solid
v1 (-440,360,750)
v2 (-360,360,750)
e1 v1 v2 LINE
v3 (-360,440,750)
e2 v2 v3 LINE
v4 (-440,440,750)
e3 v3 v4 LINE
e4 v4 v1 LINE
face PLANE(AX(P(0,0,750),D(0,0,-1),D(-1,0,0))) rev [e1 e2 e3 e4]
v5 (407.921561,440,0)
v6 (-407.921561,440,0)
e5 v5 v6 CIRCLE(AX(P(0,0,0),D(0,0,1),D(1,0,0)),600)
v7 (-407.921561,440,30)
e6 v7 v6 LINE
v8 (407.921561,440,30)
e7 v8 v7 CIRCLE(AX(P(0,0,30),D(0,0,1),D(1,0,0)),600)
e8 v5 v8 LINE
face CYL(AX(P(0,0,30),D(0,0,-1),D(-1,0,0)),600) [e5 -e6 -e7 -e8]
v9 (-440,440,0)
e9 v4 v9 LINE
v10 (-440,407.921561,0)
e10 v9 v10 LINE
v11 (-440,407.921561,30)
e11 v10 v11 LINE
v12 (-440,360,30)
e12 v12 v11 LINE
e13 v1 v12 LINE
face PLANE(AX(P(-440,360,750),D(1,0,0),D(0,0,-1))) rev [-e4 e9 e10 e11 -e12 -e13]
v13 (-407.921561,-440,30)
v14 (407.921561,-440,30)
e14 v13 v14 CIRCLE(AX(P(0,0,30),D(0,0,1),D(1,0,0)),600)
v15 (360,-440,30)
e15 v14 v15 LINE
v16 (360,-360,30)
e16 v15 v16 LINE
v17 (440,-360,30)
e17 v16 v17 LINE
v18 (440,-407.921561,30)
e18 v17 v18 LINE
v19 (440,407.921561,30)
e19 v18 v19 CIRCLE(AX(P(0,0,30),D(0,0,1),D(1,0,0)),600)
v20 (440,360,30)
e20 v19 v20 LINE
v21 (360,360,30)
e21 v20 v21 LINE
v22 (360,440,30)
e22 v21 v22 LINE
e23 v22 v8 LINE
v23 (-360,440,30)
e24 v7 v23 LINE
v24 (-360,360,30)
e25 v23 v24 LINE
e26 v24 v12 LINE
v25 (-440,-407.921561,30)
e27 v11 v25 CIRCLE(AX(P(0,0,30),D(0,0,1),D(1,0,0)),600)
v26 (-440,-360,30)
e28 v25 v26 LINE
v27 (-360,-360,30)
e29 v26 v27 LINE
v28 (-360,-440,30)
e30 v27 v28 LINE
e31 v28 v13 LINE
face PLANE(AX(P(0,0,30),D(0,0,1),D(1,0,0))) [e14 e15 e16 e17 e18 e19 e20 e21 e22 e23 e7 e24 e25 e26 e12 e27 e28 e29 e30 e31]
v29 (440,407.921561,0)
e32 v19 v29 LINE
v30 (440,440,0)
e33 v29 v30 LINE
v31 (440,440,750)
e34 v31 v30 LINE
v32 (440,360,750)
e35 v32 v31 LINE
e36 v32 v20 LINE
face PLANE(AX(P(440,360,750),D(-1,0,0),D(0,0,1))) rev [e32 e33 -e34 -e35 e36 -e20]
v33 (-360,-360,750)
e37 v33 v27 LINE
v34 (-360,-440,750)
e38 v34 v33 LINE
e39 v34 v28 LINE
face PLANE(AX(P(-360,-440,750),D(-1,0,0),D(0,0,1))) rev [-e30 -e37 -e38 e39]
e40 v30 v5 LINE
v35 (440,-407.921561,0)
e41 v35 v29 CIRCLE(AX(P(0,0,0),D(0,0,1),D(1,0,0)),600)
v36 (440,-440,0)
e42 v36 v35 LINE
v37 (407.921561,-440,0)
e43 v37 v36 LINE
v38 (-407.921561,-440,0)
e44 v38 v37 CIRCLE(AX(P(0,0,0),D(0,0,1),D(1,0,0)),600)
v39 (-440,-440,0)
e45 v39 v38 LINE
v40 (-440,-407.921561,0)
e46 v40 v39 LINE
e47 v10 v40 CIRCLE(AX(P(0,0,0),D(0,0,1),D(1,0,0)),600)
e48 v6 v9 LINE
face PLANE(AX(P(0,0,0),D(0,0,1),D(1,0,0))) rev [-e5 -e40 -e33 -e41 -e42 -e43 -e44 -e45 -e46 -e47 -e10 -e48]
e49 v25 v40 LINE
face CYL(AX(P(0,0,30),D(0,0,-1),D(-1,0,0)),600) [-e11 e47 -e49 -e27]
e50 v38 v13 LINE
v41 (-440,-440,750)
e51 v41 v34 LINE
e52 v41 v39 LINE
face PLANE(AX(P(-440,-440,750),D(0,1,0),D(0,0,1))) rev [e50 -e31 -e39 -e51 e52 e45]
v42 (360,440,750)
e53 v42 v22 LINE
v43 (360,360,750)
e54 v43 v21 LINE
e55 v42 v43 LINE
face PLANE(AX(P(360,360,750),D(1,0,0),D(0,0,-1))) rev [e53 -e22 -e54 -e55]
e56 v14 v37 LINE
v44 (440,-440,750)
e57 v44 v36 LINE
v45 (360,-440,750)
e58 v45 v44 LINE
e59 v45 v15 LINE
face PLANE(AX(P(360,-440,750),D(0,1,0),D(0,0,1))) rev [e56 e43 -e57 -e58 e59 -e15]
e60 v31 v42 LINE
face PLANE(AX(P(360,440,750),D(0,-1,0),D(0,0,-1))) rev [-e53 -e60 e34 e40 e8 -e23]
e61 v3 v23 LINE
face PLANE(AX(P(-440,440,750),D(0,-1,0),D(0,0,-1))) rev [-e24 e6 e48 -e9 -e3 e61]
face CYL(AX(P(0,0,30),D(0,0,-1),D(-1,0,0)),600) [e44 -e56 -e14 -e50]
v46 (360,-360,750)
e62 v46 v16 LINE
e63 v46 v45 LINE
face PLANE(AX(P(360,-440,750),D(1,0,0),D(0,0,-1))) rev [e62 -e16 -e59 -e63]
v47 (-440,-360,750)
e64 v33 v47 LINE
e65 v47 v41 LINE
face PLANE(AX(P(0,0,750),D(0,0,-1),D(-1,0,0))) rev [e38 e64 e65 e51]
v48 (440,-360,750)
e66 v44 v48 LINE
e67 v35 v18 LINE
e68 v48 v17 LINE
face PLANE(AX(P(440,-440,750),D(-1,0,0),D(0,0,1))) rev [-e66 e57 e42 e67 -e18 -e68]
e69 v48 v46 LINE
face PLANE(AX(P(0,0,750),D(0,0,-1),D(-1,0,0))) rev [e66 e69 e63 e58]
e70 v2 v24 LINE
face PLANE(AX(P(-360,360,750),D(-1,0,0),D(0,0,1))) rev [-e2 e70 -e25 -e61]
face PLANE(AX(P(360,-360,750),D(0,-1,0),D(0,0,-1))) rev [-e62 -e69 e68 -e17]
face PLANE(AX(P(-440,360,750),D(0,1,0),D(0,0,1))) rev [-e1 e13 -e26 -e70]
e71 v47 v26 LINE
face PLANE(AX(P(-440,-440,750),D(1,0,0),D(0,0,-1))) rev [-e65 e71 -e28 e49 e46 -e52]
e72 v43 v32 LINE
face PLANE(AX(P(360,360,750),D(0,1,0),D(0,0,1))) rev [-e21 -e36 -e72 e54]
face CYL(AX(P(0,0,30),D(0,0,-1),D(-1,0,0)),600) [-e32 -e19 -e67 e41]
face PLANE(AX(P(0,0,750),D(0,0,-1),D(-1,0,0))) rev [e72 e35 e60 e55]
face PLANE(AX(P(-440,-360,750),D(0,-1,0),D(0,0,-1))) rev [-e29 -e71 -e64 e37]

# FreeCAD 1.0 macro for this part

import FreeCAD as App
import Part
import Sketcher
Q = App.Units.Quantity


def add_polygon(sketch, points):
    """Adds a closed chain of lines whose ends are joined by coincident constraints."""
    first, n = sketch.GeometryCount, len(points)
    for a, b in zip(points, points[1:] + points[:1]):
        sketch.addGeometry(Part.LineSegment(App.Vector(*a, 0), App.Vector(*b, 0)), False)
    for i in range(n):
        sketch.addConstraint(Sketcher.Constraint("Coincident", first + i, 2, first + (i + 1) % n, 1))

doc = App.newDocument("Part")
body = doc.addObject("PartDesign::Body", "Body")

sketch1 = doc.addObject("Sketcher::SketchObject", "Sketch")
body.addObject(sketch1)
sketch1.AttachmentSupport = (doc.XY_Plane, [""])
sketch1.MapMode = "FlatFace"
sketch1.addGeometry(Part.Circle(App.Vector(0, 0, 0), App.Vector(0, 0, 1), 600), False)
sketch1.addConstraint([
    Sketcher.Constraint("Coincident", 0, 3, -1, 1),
    Sketcher.Constraint("Diameter", 0, Q("1200 mm")),
])
pad1 = doc.addObject("PartDesign::Pad", "Pad")
body.addObject(pad1)
pad1.Profile = sketch1
pad1.Length = 30

sketch2 = doc.addObject("Sketcher::SketchObject", "Sketch001")
body.addObject(sketch2)
sketch2.AttachmentSupport = (doc.XY_Plane, [""])
sketch2.MapMode = "FlatFace"
add_polygon(sketch2, [(-440, -360), (-440, -440), (-360, -440), (-360, -360)])
sketch2.addConstraint([
    Sketcher.Constraint("Vertical", 0),
    Sketcher.Constraint("Horizontal", 1),
    Sketcher.Constraint("Vertical", 2),
    Sketcher.Constraint("Horizontal", 3),
    Sketcher.Constraint("Equal", 3, 0),
    Sketcher.Constraint("DistanceX", 1, 1, 1, 2, Q("80 mm")),
    Sketcher.Constraint("DistanceX", 0, 2, -1, 1, Q("440 mm")),
    Sketcher.Constraint("DistanceY", 0, 2, -1, 1, Q("440 mm")),
])
pad2 = doc.addObject("PartDesign::Pad", "Pad001")
body.addObject(pad2)
pad2.Profile = sketch2
pad2.Length = 750

sketch3 = doc.addObject("Sketcher::SketchObject", "Sketch002")
body.addObject(sketch3)
sketch3.AttachmentSupport = (doc.XY_Plane, [""])
sketch3.MapMode = "FlatFace"
add_polygon(sketch3, [(360, -360), (360, -440), (440, -440), (440, -360)])
sketch3.addConstraint([
    Sketcher.Constraint("Vertical", 0),
    Sketcher.Constraint("Horizontal", 1),
    Sketcher.Constraint("Vertical", 2),
    Sketcher.Constraint("Horizontal", 3),
    Sketcher.Constraint("Equal", 3, 0),
    Sketcher.Constraint("DistanceX", 1, 1, 1, 2, Q("80 mm")),
    Sketcher.Constraint("DistanceX", -1, 1, 0, 2, Q("360 mm")),
    Sketcher.Constraint("DistanceY", 0, 2, -1, 1, Q("440 mm")),
])
pad3 = doc.addObject("PartDesign::Pad", "Pad002")
body.addObject(pad3)
pad3.Profile = sketch3
pad3.Length = 750

sketch4 = doc.addObject("Sketcher::SketchObject", "Sketch003")
body.addObject(sketch4)
sketch4.AttachmentSupport = (doc.XY_Plane, [""])
sketch4.MapMode = "FlatFace"
add_polygon(sketch4, [(-440, 440), (-440, 360), (-360, 360), (-360, 440)])
sketch4.addConstraint([
    Sketcher.Constraint("Vertical", 0),
    Sketcher.Constraint("Horizontal", 1),
    Sketcher.Constraint("Vertical", 2),
    Sketcher.Constraint("Horizontal", 3),
    Sketcher.Constraint("Equal", 3, 0),
    Sketcher.Constraint("DistanceX", 1, 1, 1, 2, Q("80 mm")),
    Sketcher.Constraint("DistanceX", 0, 2, -1, 1, Q("440 mm")),
    Sketcher.Constraint("DistanceY", -1, 1, 0, 2, Q("360 mm")),
])
pad4 = doc.addObject("PartDesign::Pad", "Pad003")
body.addObject(pad4)
pad4.Profile = sketch4
pad4.Length = 750

sketch5 = doc.addObject("Sketcher::SketchObject", "Sketch004")
body.addObject(sketch5)
sketch5.AttachmentSupport = (doc.XY_Plane, [""])
sketch5.MapMode = "FlatFace"
add_polygon(sketch5, [(360, 440), (360, 360), (440, 360), (440, 440)])
sketch5.addConstraint([
    Sketcher.Constraint("Vertical", 0),
    Sketcher.Constraint("Horizontal", 1),
    Sketcher.Constraint("Vertical", 2),
    Sketcher.Constraint("Horizontal", 3),
    Sketcher.Constraint("Equal", 3, 0),
    Sketcher.Constraint("DistanceX", 1, 1, 1, 2, Q("80 mm")),
    Sketcher.Constraint("DistanceX", -1, 1, 0, 2, Q("360 mm")),
    Sketcher.Constraint("DistanceY", -1, 1, 0, 2, Q("360 mm")),
])
pad5 = doc.addObject("PartDesign::Pad", "Pad004")
body.addObject(pad5)
pad5.Profile = sketch5
pad5.Length = 750

doc.recompute()
